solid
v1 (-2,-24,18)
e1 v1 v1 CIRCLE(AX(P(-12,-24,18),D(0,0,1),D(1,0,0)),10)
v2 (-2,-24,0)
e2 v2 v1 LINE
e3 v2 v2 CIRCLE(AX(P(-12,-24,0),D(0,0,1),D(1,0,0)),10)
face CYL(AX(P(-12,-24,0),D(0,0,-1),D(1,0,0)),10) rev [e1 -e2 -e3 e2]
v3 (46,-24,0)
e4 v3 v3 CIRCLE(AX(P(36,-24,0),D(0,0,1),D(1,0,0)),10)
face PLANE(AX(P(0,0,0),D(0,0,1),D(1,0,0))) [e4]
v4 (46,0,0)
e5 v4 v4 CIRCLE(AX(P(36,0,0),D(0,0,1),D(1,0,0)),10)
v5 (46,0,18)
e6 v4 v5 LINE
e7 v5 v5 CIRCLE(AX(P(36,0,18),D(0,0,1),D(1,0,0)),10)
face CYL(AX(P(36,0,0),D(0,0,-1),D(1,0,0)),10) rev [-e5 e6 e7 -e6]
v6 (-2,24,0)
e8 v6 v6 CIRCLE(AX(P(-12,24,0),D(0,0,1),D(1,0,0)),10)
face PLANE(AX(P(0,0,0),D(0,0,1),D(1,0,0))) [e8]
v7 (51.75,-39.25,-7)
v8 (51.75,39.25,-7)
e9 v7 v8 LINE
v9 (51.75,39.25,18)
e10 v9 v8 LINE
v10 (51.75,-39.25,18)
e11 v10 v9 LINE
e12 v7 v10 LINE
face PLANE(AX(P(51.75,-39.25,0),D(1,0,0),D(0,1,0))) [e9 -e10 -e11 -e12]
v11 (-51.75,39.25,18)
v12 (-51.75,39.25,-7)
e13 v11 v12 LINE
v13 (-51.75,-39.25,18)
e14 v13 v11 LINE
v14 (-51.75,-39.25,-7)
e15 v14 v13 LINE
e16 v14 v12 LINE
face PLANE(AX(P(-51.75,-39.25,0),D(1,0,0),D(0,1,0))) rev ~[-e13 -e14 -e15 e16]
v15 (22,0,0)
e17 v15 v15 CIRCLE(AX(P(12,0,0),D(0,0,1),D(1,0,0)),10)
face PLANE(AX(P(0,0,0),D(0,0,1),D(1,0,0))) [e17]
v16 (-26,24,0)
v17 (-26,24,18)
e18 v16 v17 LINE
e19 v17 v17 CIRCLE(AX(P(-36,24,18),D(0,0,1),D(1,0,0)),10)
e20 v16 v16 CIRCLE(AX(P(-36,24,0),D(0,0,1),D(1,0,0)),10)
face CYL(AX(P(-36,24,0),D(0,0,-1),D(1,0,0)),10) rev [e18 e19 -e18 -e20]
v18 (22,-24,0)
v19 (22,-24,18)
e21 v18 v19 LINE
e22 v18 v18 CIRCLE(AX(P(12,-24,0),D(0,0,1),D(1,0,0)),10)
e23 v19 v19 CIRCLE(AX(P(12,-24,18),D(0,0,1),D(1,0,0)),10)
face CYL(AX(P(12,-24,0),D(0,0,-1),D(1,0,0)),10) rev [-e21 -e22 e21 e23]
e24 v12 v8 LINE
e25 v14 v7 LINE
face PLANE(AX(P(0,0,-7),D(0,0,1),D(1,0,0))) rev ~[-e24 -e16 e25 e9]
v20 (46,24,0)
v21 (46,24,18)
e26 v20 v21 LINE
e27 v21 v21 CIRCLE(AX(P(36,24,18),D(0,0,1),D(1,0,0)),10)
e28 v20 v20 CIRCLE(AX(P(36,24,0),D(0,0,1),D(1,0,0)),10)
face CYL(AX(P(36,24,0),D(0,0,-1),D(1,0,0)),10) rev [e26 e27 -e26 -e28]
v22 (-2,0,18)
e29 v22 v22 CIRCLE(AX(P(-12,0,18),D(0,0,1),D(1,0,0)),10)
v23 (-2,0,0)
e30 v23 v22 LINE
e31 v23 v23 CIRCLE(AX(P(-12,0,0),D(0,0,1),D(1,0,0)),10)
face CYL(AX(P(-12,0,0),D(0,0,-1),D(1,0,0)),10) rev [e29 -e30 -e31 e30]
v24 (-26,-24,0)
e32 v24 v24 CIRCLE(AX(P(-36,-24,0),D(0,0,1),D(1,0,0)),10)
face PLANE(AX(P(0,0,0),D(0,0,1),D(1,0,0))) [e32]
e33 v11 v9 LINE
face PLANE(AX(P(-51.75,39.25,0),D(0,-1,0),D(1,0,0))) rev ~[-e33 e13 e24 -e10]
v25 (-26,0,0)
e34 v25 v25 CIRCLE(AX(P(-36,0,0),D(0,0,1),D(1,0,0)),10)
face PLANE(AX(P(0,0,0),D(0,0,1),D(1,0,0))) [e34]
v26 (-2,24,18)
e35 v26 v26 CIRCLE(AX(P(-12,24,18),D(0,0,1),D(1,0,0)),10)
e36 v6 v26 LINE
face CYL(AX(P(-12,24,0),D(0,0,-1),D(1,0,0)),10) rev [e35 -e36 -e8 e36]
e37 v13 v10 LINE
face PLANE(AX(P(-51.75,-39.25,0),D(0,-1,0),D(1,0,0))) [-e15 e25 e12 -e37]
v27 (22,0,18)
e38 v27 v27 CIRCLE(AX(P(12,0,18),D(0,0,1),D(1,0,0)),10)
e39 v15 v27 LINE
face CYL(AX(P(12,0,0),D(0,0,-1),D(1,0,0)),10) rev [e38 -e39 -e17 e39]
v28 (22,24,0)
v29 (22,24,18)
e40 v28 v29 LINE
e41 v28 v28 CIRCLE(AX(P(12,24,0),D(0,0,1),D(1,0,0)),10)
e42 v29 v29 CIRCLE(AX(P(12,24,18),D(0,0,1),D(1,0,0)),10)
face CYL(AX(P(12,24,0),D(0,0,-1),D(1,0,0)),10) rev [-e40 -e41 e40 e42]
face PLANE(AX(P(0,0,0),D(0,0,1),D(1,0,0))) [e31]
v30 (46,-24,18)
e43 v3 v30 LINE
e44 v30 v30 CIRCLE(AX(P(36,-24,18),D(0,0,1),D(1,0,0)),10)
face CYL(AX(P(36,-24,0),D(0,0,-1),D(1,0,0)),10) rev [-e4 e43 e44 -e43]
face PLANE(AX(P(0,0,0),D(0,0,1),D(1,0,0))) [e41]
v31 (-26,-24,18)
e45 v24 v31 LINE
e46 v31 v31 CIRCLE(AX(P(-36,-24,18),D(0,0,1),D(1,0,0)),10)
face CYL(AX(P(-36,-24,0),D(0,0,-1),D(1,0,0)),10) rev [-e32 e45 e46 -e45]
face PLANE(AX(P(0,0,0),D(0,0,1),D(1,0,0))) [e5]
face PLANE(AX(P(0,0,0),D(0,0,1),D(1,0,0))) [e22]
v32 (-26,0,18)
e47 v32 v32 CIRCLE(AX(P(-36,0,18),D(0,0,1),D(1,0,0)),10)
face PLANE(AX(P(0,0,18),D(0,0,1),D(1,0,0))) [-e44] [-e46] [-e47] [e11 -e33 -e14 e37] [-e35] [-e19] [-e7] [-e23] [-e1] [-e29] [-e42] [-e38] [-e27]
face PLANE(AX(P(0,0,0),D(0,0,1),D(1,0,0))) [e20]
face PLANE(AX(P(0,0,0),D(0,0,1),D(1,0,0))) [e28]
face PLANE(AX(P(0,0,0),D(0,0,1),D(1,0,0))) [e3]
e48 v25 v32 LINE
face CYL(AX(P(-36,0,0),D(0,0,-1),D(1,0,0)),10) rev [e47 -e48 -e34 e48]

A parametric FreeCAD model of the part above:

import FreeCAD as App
import Part
import Sketcher
Q = App.Units.Quantity


def add_polygon(sketch, points):
    """Adds a closed chain of lines whose ends are joined by coincident constraints."""
    first, n = sketch.GeometryCount, len(points)
    for a, b in zip(points, points[1:] + points[:1]):
        sketch.addGeometry(Part.LineSegment(App.Vector(*a, 0), App.Vector(*b, 0)), False)
    for i in range(n):
        sketch.addConstraint(Sketcher.Constraint("Coincident", first + i, 2, first + (i + 1) % n, 1))

doc = App.newDocument("Part")
body = doc.addObject("PartDesign::Body", "Body")

# Sketch on XY plane
sketch1 = body.newObject("Sketcher::SketchObject", "Sketch")
sketch1.AttachmentSupport = (doc.getObject("XY_Plane"), [""])
sketch1.MapMode = "FlatFace"
add_polygon(sketch1, [(-52, 39), (-52, -39), (52, -39), (52, 39)])  # lines 0-3
sketch1.addGeometry(Part.Circle(App.Vector(-36, -24, 0), App.Vector(0, 0, 1), 10), False)  # 4
sketch1.addGeometry(Part.Circle(App.Vector(-12, -24, 0), App.Vector(0, 0, 1), 10), False)  # 5
sketch1.addGeometry(Part.Circle(App.Vector(12, -24, 0), App.Vector(0, 0, 1), 10), False)  # 6
sketch1.addGeometry(Part.Circle(App.Vector(36, -24, 0), App.Vector(0, 0, 1), 10), False)  # 7
sketch1.addGeometry(Part.Circle(App.Vector(-36, 0, 0), App.Vector(0, 0, 1), 10), False)  # 8
sketch1.addGeometry(Part.Circle(App.Vector(-12, 0, 0), App.Vector(0, 0, 1), 10), False)  # 9
sketch1.addGeometry(Part.Circle(App.Vector(-36, 24, 0), App.Vector(0, 0, 1), 10), False)  # 10
sketch1.addGeometry(Part.Circle(App.Vector(-12, 24, 0), App.Vector(0, 0, 1), 10), False)  # 11
sketch1.addGeometry(Part.Circle(App.Vector(12, 0, 0), App.Vector(0, 0, 1), 10), False)  # 12
sketch1.addGeometry(Part.Circle(App.Vector(36, 0, 0), App.Vector(0, 0, 1), 10), False)  # 13
sketch1.addGeometry(Part.Circle(App.Vector(12, 24, 0), App.Vector(0, 0, 1), 10), False)  # 14
sketch1.addGeometry(Part.Circle(App.Vector(36, 24, 0), App.Vector(0, 0, 1), 10), False)  # 15
sketch1.addConstraint([
    Sketcher.Constraint("Vertical", 0),
    Sketcher.Constraint("Horizontal", 1),
    Sketcher.Constraint("Vertical", 2),
    Sketcher.Constraint("Horizontal", 3),
    Sketcher.Constraint("Equal", 4, 5),
    Sketcher.Constraint("Equal", 5, 6),
    Sketcher.Constraint("Equal", 6, 7),
    Sketcher.Constraint("Equal", 7, 8),
    Sketcher.Constraint("Equal", 8, 9),
    Sketcher.Constraint("Equal", 9, 10),
    Sketcher.Constraint("Equal", 10, 11),
    Sketcher.Constraint("Equal", 11, 12),
    Sketcher.Constraint("Equal", 12, 13),
    Sketcher.Constraint("Equal", 13, 14),
    Sketcher.Constraint("Equal", 14, 15),
    Sketcher.Constraint("Symmetric", 7, 3, 10, 3, -1, 1),
    Sketcher.Constraint("Symmetric", 6, 3, 11, 3, -1, 1),
    Sketcher.Constraint("Symmetric", 9, 3, 12, 3, -1, 1),
    Sketcher.Constraint("Symmetric", 8, 3, 13, 3, -1, 1),
    Sketcher.Constraint("Symmetric", 5, 3, 14, 3, -1, 1),
    Sketcher.Constraint("Symmetric", 4, 3, 15, 3, -1, 1),
    Sketcher.Constraint("Symmetric", 0, 2, 2, 2, -1, 1),
    Sketcher.Constraint("Symmetric", 5, 3, 6, 3, -2),
    Sketcher.Constraint("Symmetric", 4, 3, 7, 3, -2),
    Sketcher.Constraint("PointOnObject", 8, 3, -1),
    Sketcher.Constraint("PointOnObject", 9, 3, -1),
    Sketcher.Constraint("Horizontal", 4, 3, 5, 3),
    Sketcher.Constraint("Vertical", 4, 3, 8, 3),
    Sketcher.Constraint("Vertical", 5, 3, 9, 3),
    Sketcher.Constraint("Diameter", 4, Q("20 mm")),
    Sketcher.Constraint("DistanceX", 1, 1, 1, 2, Q("103.5 mm")),
    Sketcher.Constraint("DistanceY", 0, 2, 0, 1, Q("78.5 mm")),
    Sketcher.Constraint("DistanceX", 4, 3, -1, 1, Q("36 mm")),
    Sketcher.Constraint("DistanceY", 4, 3, -1, 1, Q("24 mm")),
    Sketcher.Constraint("DistanceX", 5, 3, -1, 1, Q("12 mm")),
])
pad1 = body.newObject("PartDesign::Pad", "Pad")
pad1.Profile = sketch1
pad1.Length = 18

# Sketch on XY plane
sketch2 = body.newObject("Sketcher::SketchObject", "Sketch001")
sketch2.AttachmentSupport = (doc.getObject("XY_Plane"), [""])
sketch2.MapMode = "FlatFace"
add_polygon(sketch2, [(-52, 39), (-52, -39), (52, -39), (52, 39)])  # lines 0-3
sketch2.addConstraint([
    Sketcher.Constraint("Vertical", 0),
    Sketcher.Constraint("Horizontal", 1),
    Sketcher.Constraint("Vertical", 2),
    Sketcher.Constraint("Horizontal", 3),
    Sketcher.Constraint("Symmetric", 0, 2, 2, 2, -1, 1),
    Sketcher.Constraint("DistanceX", 1, 1, 1, 2, Q("103.5 mm")),
    Sketcher.Constraint("DistanceY", 0, 2, 0, 1, Q("78.5 mm")),
])
pad2 = body.newObject("PartDesign::Pad", "Pad001")
pad2.Profile = sketch2
pad2.Length = 7
pad2.Reversed = True

doc.recompute()
